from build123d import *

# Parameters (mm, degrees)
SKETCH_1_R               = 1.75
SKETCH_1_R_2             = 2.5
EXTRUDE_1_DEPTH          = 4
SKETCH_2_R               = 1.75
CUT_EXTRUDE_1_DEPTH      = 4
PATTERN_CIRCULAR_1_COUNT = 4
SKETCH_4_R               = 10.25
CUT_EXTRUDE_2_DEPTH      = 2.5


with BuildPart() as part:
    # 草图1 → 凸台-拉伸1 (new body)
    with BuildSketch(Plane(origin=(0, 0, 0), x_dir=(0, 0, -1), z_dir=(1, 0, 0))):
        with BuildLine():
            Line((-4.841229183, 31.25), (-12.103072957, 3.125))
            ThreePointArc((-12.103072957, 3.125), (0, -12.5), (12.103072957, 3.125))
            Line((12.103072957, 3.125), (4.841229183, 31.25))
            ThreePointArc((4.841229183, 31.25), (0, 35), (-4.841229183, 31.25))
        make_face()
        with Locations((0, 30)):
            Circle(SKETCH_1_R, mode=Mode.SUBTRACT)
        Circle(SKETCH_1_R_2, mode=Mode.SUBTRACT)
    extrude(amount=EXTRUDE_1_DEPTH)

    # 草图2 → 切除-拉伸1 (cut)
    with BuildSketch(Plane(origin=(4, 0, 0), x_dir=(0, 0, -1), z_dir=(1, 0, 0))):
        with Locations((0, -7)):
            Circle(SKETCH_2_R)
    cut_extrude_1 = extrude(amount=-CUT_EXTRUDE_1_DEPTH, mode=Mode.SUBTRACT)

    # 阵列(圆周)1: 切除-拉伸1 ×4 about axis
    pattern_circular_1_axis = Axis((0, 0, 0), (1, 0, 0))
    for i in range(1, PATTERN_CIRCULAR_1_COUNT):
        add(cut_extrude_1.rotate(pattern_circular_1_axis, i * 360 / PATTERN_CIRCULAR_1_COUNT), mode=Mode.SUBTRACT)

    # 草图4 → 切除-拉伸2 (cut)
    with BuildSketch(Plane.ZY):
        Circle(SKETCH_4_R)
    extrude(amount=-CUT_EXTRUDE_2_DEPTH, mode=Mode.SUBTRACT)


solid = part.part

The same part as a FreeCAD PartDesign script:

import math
import FreeCAD as App
import Part
import Sketcher
from FreeCAD import Vector

doc = App.newDocument("Part")
body = doc.addObject("PartDesign::Body", "Body")

sketch1 = body.newObject("Sketcher::SketchObject", "Sketch")
sketch1.AttachmentSupport = (doc.getObject("YZ_Plane"), [""])
sketch1.MapMode = "FlatFace"
sketch1.addGeometry(Part.LineSegment(Vector(31.2, 4.8, 0), Vector(3.1, 12.1, 0)), False)
sketch1.addGeometry(Part.ArcOfCircle(Part.Circle(Vector(0, 0, 0), Vector(0, 0, 1), 12.5), math.radians(76), math.radians(284)), False)
sketch1.addGeometry(Part.LineSegment(Vector(3.1, -12.1, 0), Vector(31.2, -4.8, 0)), False)
sketch1.addGeometry(Part.ArcOfCircle(Part.Circle(Vector(30, 0, 0), Vector(0, 0, 1), 5), math.radians(-76), math.radians(76)), False)
sketch1.addGeometry(Part.Circle(Vector(0, 0, 0), Vector(0, 0, 1), 2.5), False)
sketch1.addGeometry(Part.Circle(Vector(30, 0, 0), Vector(0, 0, 1), 1.8), False)
sketch1.addConstraint(Sketcher.Constraint("Tangent", 0, 2, 1, 1))
sketch1.addConstraint(Sketcher.Constraint("Tangent", 1, 2, 2, 1))
sketch1.addConstraint(Sketcher.Constraint("Tangent", 2, 2, 3, 1))
sketch1.addConstraint(Sketcher.Constraint("Tangent", 3, 2, 0, 1))
sketch1.addConstraint(Sketcher.Constraint("Coincident", 1, 3, -1, 1))
sketch1.addConstraint(Sketcher.Constraint("Coincident", 4, 3, -1, 1))
sketch1.addConstraint(Sketcher.Constraint("Coincident", 5, 3, 3, 3))
sketch1.addConstraint(Sketcher.Constraint("PointOnObject", 3, 3, -1))
sketch1.addConstraint(Sketcher.Constraint("Diameter", 4, 5.0))
sketch1.addConstraint(Sketcher.Constraint("Radius", 3, 5.0))
sketch1.addConstraint(Sketcher.Constraint("Diameter", 5, 3.5))
sketch1.addConstraint(Sketcher.Constraint("Radius", 1, 12.5))
sketch1.addConstraint(Sketcher.Constraint("DistanceX", -1, 1, 3, 3, 30.0))
pad1 = body.newObject("PartDesign::Pad", "Pad")
pad1.Profile = sketch1
pad1.Length = 4

sketch2 = body.newObject("Sketcher::SketchObject", "Sketch001")
sketch2.AttachmentSupport = (doc.getObject("YZ_Plane"), [""])
sketch2.MapMode = "FlatFace"
sketch2.AttachmentOffset = App.Placement(Vector(0, 0, 4), App.Rotation())
sketch2.addGeometry(Part.Circle(Vector(-7, 0, 0), Vector(0, 0, 1), 1.8), False)
sketch2.addConstraint(Sketcher.Constraint("PointOnObject", 0, 3, -1))
sketch2.addConstraint(Sketcher.Constraint("Diameter", 0, 3.5))
sketch2.addConstraint(Sketcher.Constraint("DistanceX", 0, 3, -1, 1, 7.0))
pocket1 = body.newObject("PartDesign::Pocket", "Pocket")
pocket1.Profile = sketch2
pocket1.Length = 4
doc.recompute()

polarpattern = body.newObject("PartDesign::PolarPattern", "PolarPattern")
polarpattern.Originals = [pocket1]
polarpattern.Axis = (doc.getObject("X_Axis"), [""])
polarpattern.Angle = 360
polarpattern.Occurrences = 4
body.Tip = polarpattern

sketch3 = body.newObject("Sketcher::SketchObject", "Sketch002")
sketch3.AttachmentSupport = (doc.getObject("YZ_Plane"), [""])
sketch3.MapMode = "FlatFace"
sketch3.addGeometry(Part.Circle(Vector(0, 0, 0), Vector(0, 0, 1), 10), False)
sketch3.addConstraint(Sketcher.Constraint("Coincident", 0, 3, -1, 1))
sketch3.addConstraint(Sketcher.Constraint("Diameter", 0, 20.5))
pocket2 = body.newObject("PartDesign::Pocket", "Pocket001")
pocket2.Profile = sketch3
pocket2.Length = 2.5
pocket2.Reversed = True

doc.recompute()
